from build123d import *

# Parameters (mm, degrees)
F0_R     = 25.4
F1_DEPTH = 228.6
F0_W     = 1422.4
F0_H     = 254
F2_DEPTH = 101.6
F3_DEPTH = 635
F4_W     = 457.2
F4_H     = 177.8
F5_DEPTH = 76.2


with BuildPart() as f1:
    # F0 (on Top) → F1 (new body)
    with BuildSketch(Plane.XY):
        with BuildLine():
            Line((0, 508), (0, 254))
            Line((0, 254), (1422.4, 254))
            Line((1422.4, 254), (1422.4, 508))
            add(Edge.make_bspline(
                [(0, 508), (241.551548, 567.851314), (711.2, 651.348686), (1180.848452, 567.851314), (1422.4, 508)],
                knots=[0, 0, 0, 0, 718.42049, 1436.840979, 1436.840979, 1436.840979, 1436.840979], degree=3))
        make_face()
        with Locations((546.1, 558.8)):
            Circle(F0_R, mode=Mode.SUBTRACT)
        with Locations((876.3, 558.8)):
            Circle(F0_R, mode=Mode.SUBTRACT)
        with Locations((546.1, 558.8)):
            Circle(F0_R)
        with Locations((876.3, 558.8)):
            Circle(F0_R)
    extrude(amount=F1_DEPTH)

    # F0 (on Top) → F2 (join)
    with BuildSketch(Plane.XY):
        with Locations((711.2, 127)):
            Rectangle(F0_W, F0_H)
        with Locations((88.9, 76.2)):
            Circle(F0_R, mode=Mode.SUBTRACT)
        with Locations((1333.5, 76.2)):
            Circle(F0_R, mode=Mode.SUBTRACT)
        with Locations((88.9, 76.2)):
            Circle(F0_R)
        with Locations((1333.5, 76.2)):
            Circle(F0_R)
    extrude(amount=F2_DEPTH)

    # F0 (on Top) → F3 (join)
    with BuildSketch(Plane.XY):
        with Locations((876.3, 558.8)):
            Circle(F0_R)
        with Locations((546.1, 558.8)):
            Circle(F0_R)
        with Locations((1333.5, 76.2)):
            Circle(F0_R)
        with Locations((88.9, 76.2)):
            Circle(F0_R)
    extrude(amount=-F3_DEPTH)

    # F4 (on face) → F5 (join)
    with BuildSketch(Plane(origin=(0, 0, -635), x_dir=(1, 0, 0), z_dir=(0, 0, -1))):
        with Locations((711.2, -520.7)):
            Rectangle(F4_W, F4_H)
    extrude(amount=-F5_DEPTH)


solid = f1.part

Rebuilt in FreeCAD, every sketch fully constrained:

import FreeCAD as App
import Part
import Sketcher

V = App.Vector
Q = App.Units.Quantity

doc = App.newDocument("Part")
body = doc.addObject("PartDesign::Body", "Body")

sketch1 = doc.addObject("Sketcher::SketchObject", "Sketch")
body.addObject(sketch1)
sketch1.AttachmentSupport = (doc.XY_Plane, [""])
sketch1.MapMode = "FlatFace"
sketch1.addGeometry([
    Part.LineSegment(V(0, 508, 0), V(0, 254, 0)),
    Part.LineSegment(V(0, 254, 0), V(1422.4, 254, 0)),
    Part.LineSegment(V(1422.4, 254, 0), V(1422.4, 508, 0)),
    Part.BSplineCurve([V(0, 508, 0), V(241.551548, 567.851314, 0), V(711.2, 651.348686, 0), V(1180.848452, 567.851314, 0), V(1422.4, 508, 0)], [4, 1, 4], [0, 718.42049, 1436.840979], False, 3, [1, 1, 1, 1, 1], False),
], False)
sketch1.addConstraint([
    Sketcher.Constraint("Block", 3),
    Sketcher.Constraint("Coincident", 0, 2, 1, 1),
    Sketcher.Constraint("Coincident", 1, 2, 2, 1),
    Sketcher.Constraint("Coincident", 2, 2, 3, 2),
    Sketcher.Constraint("Coincident", 3, 1, 0, 1),
    Sketcher.Constraint("Vertical", 0),
    Sketcher.Constraint("Horizontal", 1),
    Sketcher.Constraint("Vertical", 2),
    Sketcher.Constraint("DistanceY", 0, 2, 0, 1, Q("10 in")),
])
pad1 = doc.addObject("PartDesign::Pad", "Pad")
body.addObject(pad1)
pad1.Profile = sketch1
pad1.Length = Q("9 in")

sketch2 = doc.addObject("Sketcher::SketchObject", "Sketch001")
body.addObject(sketch2)
sketch2.AttachmentSupport = (doc.XY_Plane, [""])
sketch2.MapMode = "FlatFace"
sketch2.addGeometry([
    Part.LineSegment(V(0, 254, 0), V(0, 0, 0)),
    Part.LineSegment(V(0, 0, 0), V(1422, 0, 0)),
    Part.LineSegment(V(1422, 0, 0), V(1422, 254, 0)),
    Part.LineSegment(V(1422, 254, 0), V(0, 254, 0)),
], False)
sketch2.addConstraint([
    Sketcher.Constraint("Coincident", 0, 2, 1, 1),
    Sketcher.Constraint("Coincident", 1, 2, 2, 1),
    Sketcher.Constraint("Coincident", 2, 2, 3, 1),
    Sketcher.Constraint("Coincident", 3, 2, 0, 1),
    Sketcher.Constraint("Vertical", 0),
    Sketcher.Constraint("Horizontal", 1),
    Sketcher.Constraint("Vertical", 2),
    Sketcher.Constraint("Horizontal", 3),
    Sketcher.Constraint("Coincident", 0, 2, -1, 1),
    Sketcher.Constraint("DistanceX", 1, 1, 1, 2, Q("56 in")),
    Sketcher.Constraint("DistanceY", 0, 2, 0, 1, Q("10 in")),
])
pad2 = doc.addObject("PartDesign::Pad", "Pad001")
body.addObject(pad2)
pad2.Profile = sketch2
pad2.Length = Q("4 in")

sketch3 = doc.addObject("Sketcher::SketchObject", "Sketch002")
body.addObject(sketch3)
sketch3.AttachmentSupport = (doc.XY_Plane, [""])
sketch3.MapMode = "FlatFace"
sketch3.addGeometry([
    Part.Circle(V(876, 559, 0), V(0, 0, 1), 25),
    Part.Circle(V(546, 559, 0), V(0, 0, 1), 25),
    Part.Circle(V(1334, 76, 0), V(0, 0, 1), 25),
    Part.Circle(V(89, 76, 0), V(0, 0, 1), 25),
], False)
sketch3.addConstraint([
    Sketcher.Constraint("Equal", 0, 1),
    Sketcher.Constraint("Equal", 1, 2),
    Sketcher.Constraint("Equal", 2, 3),
    Sketcher.Constraint("Horizontal", 0, 3, 1, 3),
    Sketcher.Constraint("Horizontal", 2, 3, 3, 3),
    Sketcher.Constraint("Diameter", 0, Q("2 in")),
    Sketcher.Constraint("DistanceY", -1, 1, 0, 3, Q("22 in")),
    Sketcher.Constraint("DistanceY", -1, 1, 2, 3, Q("3 in")),
    Sketcher.Constraint("DistanceX", 1, 3, 0, 3, Q("13 in")),
    Sketcher.Constraint("DistanceX", 0, 3, 2, 3, Q("18 in")),
    Sketcher.Constraint("DistanceX", 3, 3, 1, 3, Q("18 in")),
    Sketcher.Constraint("DistanceX", -1, 1, 0, 3, Q("34.5 in")),
])
pad3 = doc.addObject("PartDesign::Pad", "Pad002")
body.addObject(pad3)
pad3.Profile = sketch3
pad3.Length = Q("25 in")
pad3.Reversed = True

sketch4 = doc.addObject("Sketcher::SketchObject", "Sketch003")
body.addObject(sketch4)
sketch4.AttachmentSupport = (doc.XY_Plane, [""])
sketch4.MapMode = "FlatFace"
sketch4.AttachmentOffset = App.Placement(V(0, 0, -25 * 25.4), App.Rotation())
sketch4.addGeometry([
    Part.LineSegment(V(483, 432, 0), V(483, 610, 0)),
    Part.LineSegment(V(483, 610, 0), V(940, 610, 0)),
    Part.LineSegment(V(940, 610, 0), V(940, 432, 0)),
    Part.LineSegment(V(940, 432, 0), V(483, 432, 0)),
], False)
sketch4.addConstraint([
    Sketcher.Constraint("Coincident", 0, 2, 1, 1),
    Sketcher.Constraint("Coincident", 1, 2, 2, 1),
    Sketcher.Constraint("Coincident", 2, 2, 3, 1),
    Sketcher.Constraint("Coincident", 3, 2, 0, 1),
    Sketcher.Constraint("Vertical", 0),
    Sketcher.Constraint("Horizontal", 1),
    Sketcher.Constraint("Vertical", 2),
    Sketcher.Constraint("Horizontal", 3),
    Sketcher.Constraint("DistanceX", 1, 1, 1, 2, Q("18 in")),
    Sketcher.Constraint("DistanceY", 0, 1, 0, 2, Q("7 in")),
    Sketcher.Constraint("DistanceX", -1, 1, 0, 2, Q("19 in")),
    Sketcher.Constraint("DistanceY", -1, 1, 0, 2, Q("24 in")),
])
pad4 = doc.addObject("PartDesign::Pad", "Pad003")
body.addObject(pad4)
pad4.Profile = sketch4
pad4.Length = Q("3 in")

doc.recompute()
